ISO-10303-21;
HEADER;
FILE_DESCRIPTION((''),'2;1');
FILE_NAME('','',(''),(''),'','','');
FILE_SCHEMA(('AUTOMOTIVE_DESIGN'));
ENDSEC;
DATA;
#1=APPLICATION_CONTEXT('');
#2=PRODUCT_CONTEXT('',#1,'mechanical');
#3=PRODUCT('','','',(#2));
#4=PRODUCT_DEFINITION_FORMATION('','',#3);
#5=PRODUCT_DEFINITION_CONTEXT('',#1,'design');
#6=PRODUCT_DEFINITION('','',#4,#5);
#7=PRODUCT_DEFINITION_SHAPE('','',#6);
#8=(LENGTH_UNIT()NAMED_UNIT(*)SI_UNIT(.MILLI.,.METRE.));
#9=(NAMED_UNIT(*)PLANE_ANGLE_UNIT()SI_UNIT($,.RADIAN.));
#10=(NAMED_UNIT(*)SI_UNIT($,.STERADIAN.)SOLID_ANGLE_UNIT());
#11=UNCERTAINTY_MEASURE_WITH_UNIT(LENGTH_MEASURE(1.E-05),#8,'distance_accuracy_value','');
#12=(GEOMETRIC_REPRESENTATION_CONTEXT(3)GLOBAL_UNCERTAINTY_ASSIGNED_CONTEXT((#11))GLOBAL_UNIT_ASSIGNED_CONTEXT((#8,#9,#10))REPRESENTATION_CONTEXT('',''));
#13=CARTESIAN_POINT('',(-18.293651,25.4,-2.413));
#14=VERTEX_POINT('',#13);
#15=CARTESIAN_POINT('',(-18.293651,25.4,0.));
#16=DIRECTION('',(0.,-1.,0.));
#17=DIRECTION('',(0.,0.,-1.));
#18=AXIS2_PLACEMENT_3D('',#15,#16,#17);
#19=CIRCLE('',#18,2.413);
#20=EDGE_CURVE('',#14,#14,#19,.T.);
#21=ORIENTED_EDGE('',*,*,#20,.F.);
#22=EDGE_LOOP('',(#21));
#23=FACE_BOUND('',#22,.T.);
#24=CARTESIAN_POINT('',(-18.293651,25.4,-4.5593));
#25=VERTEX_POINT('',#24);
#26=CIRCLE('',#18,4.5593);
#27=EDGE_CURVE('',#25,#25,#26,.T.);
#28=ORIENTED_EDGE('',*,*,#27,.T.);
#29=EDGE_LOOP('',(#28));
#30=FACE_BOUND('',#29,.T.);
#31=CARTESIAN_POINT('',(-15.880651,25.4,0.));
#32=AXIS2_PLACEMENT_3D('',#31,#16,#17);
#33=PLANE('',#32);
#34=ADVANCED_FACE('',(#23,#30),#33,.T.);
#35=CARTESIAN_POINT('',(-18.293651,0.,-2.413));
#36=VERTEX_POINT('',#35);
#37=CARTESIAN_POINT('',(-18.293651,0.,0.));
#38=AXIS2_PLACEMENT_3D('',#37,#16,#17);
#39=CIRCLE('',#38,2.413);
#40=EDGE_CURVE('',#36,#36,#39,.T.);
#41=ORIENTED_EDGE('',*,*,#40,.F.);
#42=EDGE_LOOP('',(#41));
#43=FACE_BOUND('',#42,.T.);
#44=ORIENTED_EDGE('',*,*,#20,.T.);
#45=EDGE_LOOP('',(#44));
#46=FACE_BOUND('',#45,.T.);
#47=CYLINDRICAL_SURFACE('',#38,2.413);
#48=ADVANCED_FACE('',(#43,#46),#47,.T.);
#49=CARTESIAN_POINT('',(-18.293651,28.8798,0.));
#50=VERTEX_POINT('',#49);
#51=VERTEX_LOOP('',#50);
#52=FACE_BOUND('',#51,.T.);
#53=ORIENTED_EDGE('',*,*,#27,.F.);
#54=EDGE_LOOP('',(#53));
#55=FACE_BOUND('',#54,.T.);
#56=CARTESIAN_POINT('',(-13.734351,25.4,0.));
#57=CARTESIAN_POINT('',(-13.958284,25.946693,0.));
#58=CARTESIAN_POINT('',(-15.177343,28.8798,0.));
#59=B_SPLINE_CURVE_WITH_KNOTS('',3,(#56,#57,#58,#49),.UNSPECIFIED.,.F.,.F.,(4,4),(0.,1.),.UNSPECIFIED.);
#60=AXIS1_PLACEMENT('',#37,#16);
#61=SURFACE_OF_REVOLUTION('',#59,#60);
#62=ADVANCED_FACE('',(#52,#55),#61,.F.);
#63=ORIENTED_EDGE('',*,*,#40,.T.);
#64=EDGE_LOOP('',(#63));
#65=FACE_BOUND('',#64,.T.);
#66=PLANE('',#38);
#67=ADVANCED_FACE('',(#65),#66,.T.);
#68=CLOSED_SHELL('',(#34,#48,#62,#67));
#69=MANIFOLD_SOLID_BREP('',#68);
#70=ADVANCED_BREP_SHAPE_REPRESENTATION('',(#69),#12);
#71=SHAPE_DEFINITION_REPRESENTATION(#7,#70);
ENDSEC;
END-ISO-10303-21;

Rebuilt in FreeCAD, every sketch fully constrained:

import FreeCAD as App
import Part
import Sketcher
from FreeCAD import Vector
Q = App.Units.Quantity

doc = App.newDocument("Part")
params = doc.addObject("Spreadsheet::Sheet", "Params")
for row, (alias, value) in enumerate([
    ("sketch1_width", "0.095 in"),
    ("revolution_angle", "360 deg"),
], start=1):
    params.set(f"A{row}", alias)
    params.set(f"B{row}", "=" + value)
    params.setAlias(f"B{row}", alias)

body = doc.addObject("PartDesign::Body", "Body")

sketch1 = doc.addObject("Sketcher::SketchObject", "Sketch")
body.addObject(sketch1)
sketch1.AttachmentSupport = (doc.XY_Plane, [""])
sketch1.MapMode = "FlatFace"
sketch1.addGeometry([
    Part.LineSegment(Vector(-18.293651, 0, 0), Vector(-15.880651, 0, 0)),
    Part.LineSegment(Vector(-15.880651, 0, 0), Vector(-15.880651, 25.4, 0)),
    Part.LineSegment(Vector(-15.880651, 25.4, 0), Vector(-13.734351, 25.4, 0)),
    Part.BSplineCurve([Vector(-13.734351, 25.4, 0), Vector(-13.958284, 25.946693, 0), Vector(-15.177343, 28.8798, 0), Vector(-18.293651, 28.8798, 0)], [4, 4], [0, 1], False, 3, [1, 1, 1, 1], False),
    Part.LineSegment(Vector(-18.293651, 28.8798, 0), Vector(-18.293651, 0, 0)),
], False)
sketch1.addGeometry(Part.LineSegment(Vector(-18.293651, 0, 0), Vector(-18.293651, 28.8798, 0)), True)
sketch1.addConstraint([
    Sketcher.Constraint("Block", 3),
    Sketcher.Constraint("Coincident", 0, 2, 1, 1),
    Sketcher.Constraint("Coincident", 1, 2, 2, 1),
    Sketcher.Constraint("Coincident", 2, 2, 3, 1),
    Sketcher.Constraint("Coincident", 3, 2, 4, 1),
    Sketcher.Constraint("Coincident", 4, 2, 0, 1),
    Sketcher.Constraint("Horizontal", 0),
    Sketcher.Constraint("Vertical", 1),
    Sketcher.Constraint("Horizontal", 2),
    Sketcher.Constraint("Vertical", 4),
    Sketcher.Constraint("Vertical", 5),
    Sketcher.Constraint("Coincident", 5, 1, 4, 2),
    Sketcher.Constraint("PointOnObject", 0, 2, -1),
    Sketcher.Constraint("Equal", 4, 5),
    Sketcher.Constraint("DistanceX", 0, 1, 0, 2, Q("0.095 in")),
])
sketch1.setExpression("Constraints[14]", "Params.sketch1_width")
revolution = doc.addObject("PartDesign::Revolution", "Revolution")
body.addObject(revolution)
revolution.Profile = sketch1
revolution.ReferenceAxis = (sketch1, ["Axis0"])
revolution.setExpression("Angle", "Params.revolution_angle")

doc.recompute()
